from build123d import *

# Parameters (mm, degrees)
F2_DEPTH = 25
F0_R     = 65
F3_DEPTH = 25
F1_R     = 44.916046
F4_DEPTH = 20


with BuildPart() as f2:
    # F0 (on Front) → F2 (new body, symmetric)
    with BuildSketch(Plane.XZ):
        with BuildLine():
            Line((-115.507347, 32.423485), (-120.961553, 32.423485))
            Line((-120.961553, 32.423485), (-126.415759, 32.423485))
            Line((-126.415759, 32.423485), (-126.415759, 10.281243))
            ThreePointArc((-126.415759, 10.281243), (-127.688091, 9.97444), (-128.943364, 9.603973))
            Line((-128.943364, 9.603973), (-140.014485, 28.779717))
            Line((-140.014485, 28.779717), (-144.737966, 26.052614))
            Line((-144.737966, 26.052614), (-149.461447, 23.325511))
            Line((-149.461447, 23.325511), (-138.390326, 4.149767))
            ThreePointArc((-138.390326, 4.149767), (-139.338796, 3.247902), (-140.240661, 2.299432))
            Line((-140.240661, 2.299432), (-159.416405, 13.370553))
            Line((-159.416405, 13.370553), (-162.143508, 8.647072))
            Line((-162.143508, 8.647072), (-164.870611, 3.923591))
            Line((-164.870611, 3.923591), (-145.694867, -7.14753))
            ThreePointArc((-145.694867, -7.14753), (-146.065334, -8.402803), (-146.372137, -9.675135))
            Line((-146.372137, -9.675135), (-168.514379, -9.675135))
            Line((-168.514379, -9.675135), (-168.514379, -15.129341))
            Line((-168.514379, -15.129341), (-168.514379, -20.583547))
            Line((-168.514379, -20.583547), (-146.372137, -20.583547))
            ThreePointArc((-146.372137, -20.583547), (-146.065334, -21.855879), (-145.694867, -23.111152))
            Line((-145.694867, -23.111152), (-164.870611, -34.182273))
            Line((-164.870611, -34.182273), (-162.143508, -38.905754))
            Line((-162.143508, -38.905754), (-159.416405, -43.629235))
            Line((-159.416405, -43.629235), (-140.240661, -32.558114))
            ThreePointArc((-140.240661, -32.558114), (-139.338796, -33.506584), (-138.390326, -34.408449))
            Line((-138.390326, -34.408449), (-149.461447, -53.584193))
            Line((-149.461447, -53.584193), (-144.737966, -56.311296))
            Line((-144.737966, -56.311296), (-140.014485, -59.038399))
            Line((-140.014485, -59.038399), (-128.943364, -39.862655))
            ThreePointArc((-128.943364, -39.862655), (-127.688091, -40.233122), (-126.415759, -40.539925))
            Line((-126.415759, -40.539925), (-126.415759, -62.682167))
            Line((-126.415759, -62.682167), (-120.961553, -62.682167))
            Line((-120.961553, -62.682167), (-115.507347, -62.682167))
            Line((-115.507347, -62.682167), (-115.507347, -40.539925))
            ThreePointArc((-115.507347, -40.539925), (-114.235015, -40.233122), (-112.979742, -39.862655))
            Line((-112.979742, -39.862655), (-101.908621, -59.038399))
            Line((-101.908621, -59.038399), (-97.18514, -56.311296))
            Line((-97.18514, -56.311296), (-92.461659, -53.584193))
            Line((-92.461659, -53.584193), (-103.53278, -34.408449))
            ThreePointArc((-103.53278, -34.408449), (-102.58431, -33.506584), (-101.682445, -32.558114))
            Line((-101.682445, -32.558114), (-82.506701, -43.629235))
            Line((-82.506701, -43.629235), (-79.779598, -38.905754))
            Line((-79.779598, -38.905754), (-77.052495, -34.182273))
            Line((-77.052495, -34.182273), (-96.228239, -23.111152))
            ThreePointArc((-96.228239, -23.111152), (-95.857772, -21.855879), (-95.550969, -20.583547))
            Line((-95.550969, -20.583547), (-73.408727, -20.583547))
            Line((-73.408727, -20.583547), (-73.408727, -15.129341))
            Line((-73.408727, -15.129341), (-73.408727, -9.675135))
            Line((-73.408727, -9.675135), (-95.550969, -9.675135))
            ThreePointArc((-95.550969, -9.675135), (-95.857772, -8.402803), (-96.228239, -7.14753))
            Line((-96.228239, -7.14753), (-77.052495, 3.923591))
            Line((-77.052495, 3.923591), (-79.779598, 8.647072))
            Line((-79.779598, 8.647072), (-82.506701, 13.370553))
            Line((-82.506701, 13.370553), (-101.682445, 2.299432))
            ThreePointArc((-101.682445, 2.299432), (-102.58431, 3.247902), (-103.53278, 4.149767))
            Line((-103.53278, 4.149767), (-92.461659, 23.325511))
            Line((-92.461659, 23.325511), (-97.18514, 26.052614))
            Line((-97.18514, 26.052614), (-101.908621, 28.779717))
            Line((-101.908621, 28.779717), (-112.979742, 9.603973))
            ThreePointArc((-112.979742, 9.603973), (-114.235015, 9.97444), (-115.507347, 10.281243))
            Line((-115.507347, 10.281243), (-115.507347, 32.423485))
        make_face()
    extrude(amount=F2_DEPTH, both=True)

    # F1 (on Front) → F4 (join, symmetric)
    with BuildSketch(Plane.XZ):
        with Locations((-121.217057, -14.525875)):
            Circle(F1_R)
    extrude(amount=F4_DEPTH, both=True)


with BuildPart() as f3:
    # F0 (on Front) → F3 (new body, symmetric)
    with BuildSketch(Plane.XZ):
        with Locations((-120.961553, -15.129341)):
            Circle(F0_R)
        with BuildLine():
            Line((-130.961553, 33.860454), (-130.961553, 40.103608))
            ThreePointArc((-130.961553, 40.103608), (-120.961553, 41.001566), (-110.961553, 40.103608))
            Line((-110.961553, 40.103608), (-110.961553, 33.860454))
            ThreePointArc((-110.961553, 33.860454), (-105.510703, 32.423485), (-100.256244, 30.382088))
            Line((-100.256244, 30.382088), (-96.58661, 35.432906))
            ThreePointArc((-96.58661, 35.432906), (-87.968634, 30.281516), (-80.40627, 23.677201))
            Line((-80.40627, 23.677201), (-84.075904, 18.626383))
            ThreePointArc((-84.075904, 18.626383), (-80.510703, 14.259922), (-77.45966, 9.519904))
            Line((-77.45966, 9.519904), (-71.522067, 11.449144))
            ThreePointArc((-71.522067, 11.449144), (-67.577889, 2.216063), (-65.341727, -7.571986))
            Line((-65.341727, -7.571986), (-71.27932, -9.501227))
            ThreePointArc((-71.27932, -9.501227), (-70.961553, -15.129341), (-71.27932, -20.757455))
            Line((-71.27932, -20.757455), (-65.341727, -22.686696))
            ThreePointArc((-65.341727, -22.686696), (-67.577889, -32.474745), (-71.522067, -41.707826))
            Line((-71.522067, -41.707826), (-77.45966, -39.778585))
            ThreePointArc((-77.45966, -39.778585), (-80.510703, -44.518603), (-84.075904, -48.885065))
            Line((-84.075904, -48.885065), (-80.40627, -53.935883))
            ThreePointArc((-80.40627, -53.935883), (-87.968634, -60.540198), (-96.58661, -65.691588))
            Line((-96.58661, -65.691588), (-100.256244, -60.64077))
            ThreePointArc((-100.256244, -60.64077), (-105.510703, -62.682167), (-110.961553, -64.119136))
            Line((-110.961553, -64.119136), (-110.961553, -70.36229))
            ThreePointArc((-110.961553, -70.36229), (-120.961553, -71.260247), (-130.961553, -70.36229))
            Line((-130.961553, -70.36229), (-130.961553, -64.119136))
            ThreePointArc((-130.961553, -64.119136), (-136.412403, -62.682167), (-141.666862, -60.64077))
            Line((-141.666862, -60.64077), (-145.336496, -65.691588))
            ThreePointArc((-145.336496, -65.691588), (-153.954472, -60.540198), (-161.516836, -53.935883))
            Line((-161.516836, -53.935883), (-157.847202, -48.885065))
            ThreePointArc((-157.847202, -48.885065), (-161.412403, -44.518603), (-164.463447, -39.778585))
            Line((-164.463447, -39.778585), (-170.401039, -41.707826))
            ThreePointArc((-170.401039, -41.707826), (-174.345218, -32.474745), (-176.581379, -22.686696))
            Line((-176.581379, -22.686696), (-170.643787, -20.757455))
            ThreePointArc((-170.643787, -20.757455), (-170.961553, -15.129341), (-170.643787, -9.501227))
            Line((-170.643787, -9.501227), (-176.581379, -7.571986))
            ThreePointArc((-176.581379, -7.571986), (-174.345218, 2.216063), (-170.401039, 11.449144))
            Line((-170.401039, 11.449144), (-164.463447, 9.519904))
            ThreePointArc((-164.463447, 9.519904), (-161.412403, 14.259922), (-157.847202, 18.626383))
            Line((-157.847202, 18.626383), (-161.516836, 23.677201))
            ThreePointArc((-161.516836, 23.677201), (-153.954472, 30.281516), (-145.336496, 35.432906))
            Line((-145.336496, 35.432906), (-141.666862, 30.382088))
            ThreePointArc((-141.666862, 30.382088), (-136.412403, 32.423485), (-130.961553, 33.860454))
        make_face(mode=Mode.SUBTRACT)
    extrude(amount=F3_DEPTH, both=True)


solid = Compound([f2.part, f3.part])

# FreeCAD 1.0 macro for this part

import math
import FreeCAD as App
import Part
import Sketcher
from FreeCAD import Vector
Q = App.Units.Quantity

doc = App.newDocument("Part")
body = doc.addObject("PartDesign::Body", "Body")

# Sketch on XZ plane
sketch1 = body.newObject("Sketcher::SketchObject", "Sketch")
sketch1.AttachmentSupport = (doc.getObject("XZ_Plane"), [""])
sketch1.MapMode = "FlatFace"
sketch1.addGeometry([
    Part.LineSegment(Vector(-115.5, 32.4, 0), Vector(-126.4, 32.4, 0)),  # 0
    Part.LineSegment(Vector(-126.4, 32.4, 0), Vector(-126.4, 10.3, 0)),  # 1
    Part.ArcOfCircle(Part.Circle(Vector(-121, -15.1, 0), Vector(0, 0, 1), 26), math.radians(102.11), math.radians(107.89)),  # 2
    Part.LineSegment(Vector(-128.9, 9.6, 0), Vector(-140, 28.8, 0)),  # 3
    Part.LineSegment(Vector(-140, 28.8, 0), Vector(-149.5, 23.3, 0)),  # 4
    Part.LineSegment(Vector(-149.5, 23.3, 0), Vector(-138.4, 4.1, 0)),  # 5
    Part.ArcOfCircle(Part.Circle(Vector(-121, -15.1, 0), Vector(0, 0, 1), 26), math.radians(132.11), math.radians(137.89)),  # 6
    Part.LineSegment(Vector(-140.2, 2.3, 0), Vector(-159.4, 13.4, 0)),  # 7
    Part.LineSegment(Vector(-159.4, 13.4, 0), Vector(-164.9, 3.9, 0)),  # 8
    Part.LineSegment(Vector(-164.9, 3.9, 0), Vector(-145.7, -7.1, 0)),  # 9
    Part.ArcOfCircle(Part.Circle(Vector(-121, -15.1, 0), Vector(0, 0, 1), 26), math.radians(162.11), math.radians(167.89)),  # 10
    Part.LineSegment(Vector(-146.4, -9.7, 0), Vector(-168.5, -9.7, 0)),  # 11
    Part.LineSegment(Vector(-168.5, -9.7, 0), Vector(-168.5, -20.6, 0)),  # 12
    Part.LineSegment(Vector(-168.5, -20.6, 0), Vector(-146.4, -20.6, 0)),  # 13
    Part.ArcOfCircle(Part.Circle(Vector(-121, -15.1, 0), Vector(0, 0, 1), 26), math.radians(-167.89), math.radians(-162.11)),  # 14
    Part.LineSegment(Vector(-145.7, -23.1, 0), Vector(-164.9, -34.2, 0)),  # 15
    Part.LineSegment(Vector(-164.9, -34.2, 0), Vector(-159.4, -43.6, 0)),  # 16
    Part.LineSegment(Vector(-159.4, -43.6, 0), Vector(-140.2, -32.6, 0)),  # 17
    Part.ArcOfCircle(Part.Circle(Vector(-121, -15.1, 0), Vector(0, 0, 1), 26), math.radians(-137.89), math.radians(-132.11)),  # 18
    Part.LineSegment(Vector(-138.4, -34.4, 0), Vector(-149.5, -53.6, 0)),  # 19
    Part.LineSegment(Vector(-149.5, -53.6, 0), Vector(-140, -59, 0)),  # 20
    Part.LineSegment(Vector(-140, -59, 0), Vector(-128.9, -39.9, 0)),  # 21
    Part.ArcOfCircle(Part.Circle(Vector(-121, -15.1, 0), Vector(0, 0, 1), 26), math.radians(-107.89), math.radians(-102.11)),  # 22
    Part.LineSegment(Vector(-126.4, -40.5, 0), Vector(-126.4, -62.7, 0)),  # 23
    Part.LineSegment(Vector(-126.4, -62.7, 0), Vector(-115.5, -62.7, 0)),  # 24
    Part.LineSegment(Vector(-115.5, -62.7, 0), Vector(-115.5, -40.5, 0)),  # 25
    Part.ArcOfCircle(Part.Circle(Vector(-121, -15.1, 0), Vector(0, 0, 1), 26), math.radians(-77.89), math.radians(-72.11)),  # 26
    Part.LineSegment(Vector(-113, -39.9, 0), Vector(-101.9, -59, 0)),  # 27
    Part.LineSegment(Vector(-101.9, -59, 0), Vector(-92.5, -53.6, 0)),  # 28
    Part.LineSegment(Vector(-92.5, -53.6, 0), Vector(-103.5, -34.4, 0)),  # 29
    Part.ArcOfCircle(Part.Circle(Vector(-121, -15.1, 0), Vector(0, 0, 1), 26), math.radians(-47.89), math.radians(-42.11)),  # 30
    Part.LineSegment(Vector(-101.7, -32.6, 0), Vector(-82.5, -43.6, 0)),  # 31
    Part.LineSegment(Vector(-82.5, -43.6, 0), Vector(-77.1, -34.2, 0)),  # 32
    Part.LineSegment(Vector(-77.1, -34.2, 0), Vector(-96.2, -23.1, 0)),  # 33
    Part.ArcOfCircle(Part.Circle(Vector(-121, -15.1, 0), Vector(0, 0, 1), 26), math.radians(-17.89), math.radians(-12.11)),  # 34
    Part.LineSegment(Vector(-95.6, -20.6, 0), Vector(-73.4, -20.6, 0)),  # 35
    Part.LineSegment(Vector(-73.4, -20.6, 0), Vector(-73.4, -9.7, 0)),  # 36
    Part.LineSegment(Vector(-73.4, -9.7, 0), Vector(-95.6, -9.7, 0)),  # 37
    Part.ArcOfCircle(Part.Circle(Vector(-121, -15.1, 0), Vector(0, 0, 1), 26), math.radians(12.11), math.radians(17.89)),  # 38
    Part.LineSegment(Vector(-96.2, -7.1, 0), Vector(-77.1, 3.9, 0)),  # 39
    Part.LineSegment(Vector(-77.1, 3.9, 0), Vector(-82.5, 13.4, 0)),  # 40
    Part.LineSegment(Vector(-82.5, 13.4, 0), Vector(-101.7, 2.3, 0)),  # 41
    Part.ArcOfCircle(Part.Circle(Vector(-121, -15.1, 0), Vector(0, 0, 1), 26), math.radians(42.11), math.radians(47.89)),  # 42
    Part.LineSegment(Vector(-103.5, 4.1, 0), Vector(-92.5, 23.3, 0)),  # 43
    Part.LineSegment(Vector(-92.5, 23.3, 0), Vector(-101.9, 28.8, 0)),  # 44
    Part.LineSegment(Vector(-101.9, 28.8, 0), Vector(-113, 9.6, 0)),  # 45
    Part.ArcOfCircle(Part.Circle(Vector(-121, -15.1, 0), Vector(0, 0, 1), 26), math.radians(72.11), math.radians(77.89)),  # 46
    Part.LineSegment(Vector(-115.5, 10.3, 0), Vector(-115.5, 32.4, 0)),  # 47
], False)
sketch1.addConstraint([
    Sketcher.Constraint("Coincident", 0, 2, 1, 1),
    Sketcher.Constraint("Coincident", 1, 2, 2, 1),
    Sketcher.Constraint("Coincident", 2, 2, 3, 1),
    Sketcher.Constraint("Coincident", 3, 2, 4, 1),
    Sketcher.Constraint("Coincident", 4, 2, 5, 1),
    Sketcher.Constraint("Coincident", 5, 2, 6, 1),
    Sketcher.Constraint("Coincident", 6, 2, 7, 1),
    Sketcher.Constraint("Coincident", 7, 2, 8, 1),
    Sketcher.Constraint("Coincident", 8, 2, 9, 1),
    Sketcher.Constraint("Coincident", 9, 2, 10, 1),
    Sketcher.Constraint("Coincident", 10, 2, 11, 1),
    Sketcher.Constraint("Coincident", 11, 2, 12, 1),
    Sketcher.Constraint("Coincident", 12, 2, 13, 1),
    Sketcher.Constraint("Coincident", 13, 2, 14, 1),
    Sketcher.Constraint("Coincident", 14, 2, 15, 1),
    Sketcher.Constraint("Coincident", 15, 2, 16, 1),
    Sketcher.Constraint("Coincident", 16, 2, 17, 1),
    Sketcher.Constraint("Coincident", 17, 2, 18, 1),
    Sketcher.Constraint("Coincident", 18, 2, 19, 1),
    Sketcher.Constraint("Coincident", 19, 2, 20, 1),
    Sketcher.Constraint("Coincident", 20, 2, 21, 1),
    Sketcher.Constraint("Coincident", 21, 2, 22, 1),
    Sketcher.Constraint("Coincident", 22, 2, 23, 1),
    Sketcher.Constraint("Coincident", 23, 2, 24, 1),
    Sketcher.Constraint("Coincident", 24, 2, 25, 1),
    Sketcher.Constraint("Coincident", 25, 2, 26, 1),
    Sketcher.Constraint("Coincident", 26, 2, 27, 1),
    Sketcher.Constraint("Coincident", 27, 2, 28, 1),
    Sketcher.Constraint("Coincident", 28, 2, 29, 1),
    Sketcher.Constraint("Coincident", 29, 2, 30, 1),
    Sketcher.Constraint("Coincident", 30, 2, 31, 1),
    Sketcher.Constraint("Coincident", 31, 2, 32, 1),
    Sketcher.Constraint("Coincident", 32, 2, 33, 1),
    Sketcher.Constraint("Coincident", 33, 2, 34, 1),
    Sketcher.Constraint("Coincident", 34, 2, 35, 1),
    Sketcher.Constraint("Coincident", 35, 2, 36, 1),
    Sketcher.Constraint("Coincident", 36, 2, 37, 1),
    Sketcher.Constraint("Coincident", 37, 2, 38, 1),
    Sketcher.Constraint("Coincident", 38, 2, 39, 1),
    Sketcher.Constraint("Coincident", 39, 2, 40, 1),
    Sketcher.Constraint("Coincident", 40, 2, 41, 1),
    Sketcher.Constraint("Coincident", 41, 2, 42, 1),
    Sketcher.Constraint("Coincident", 42, 2, 43, 1),
    Sketcher.Constraint("Coincident", 43, 2, 44, 1),
    Sketcher.Constraint("Coincident", 44, 2, 45, 1),
    Sketcher.Constraint("Coincident", 45, 2, 46, 1),
    Sketcher.Constraint("Coincident", 46, 2, 47, 1),
    Sketcher.Constraint("Coincident", 47, 2, 0, 1),
    Sketcher.Constraint("Horizontal", 0),
    Sketcher.Constraint("Vertical", 1),
    Sketcher.Constraint("Horizontal", 11),
    Sketcher.Constraint("Vertical", 12),
    Sketcher.Constraint("Horizontal", 13),
    Sketcher.Constraint("Vertical", 23),
    Sketcher.Constraint("Horizontal", 24),
    Sketcher.Constraint("Vertical", 25),
    Sketcher.Constraint("Horizontal", 35),
    Sketcher.Constraint("Vertical", 36),
    Sketcher.Constraint("Horizontal", 37),
    Sketcher.Constraint("Vertical", 47),
    Sketcher.Constraint("Equal", 2, 10),
    Sketcher.Constraint("Equal", 10, 14),
    Sketcher.Constraint("Equal", 6, 18),
    Sketcher.Constraint("Equal", 14, 22),
    Sketcher.Constraint("Equal", 22, 26),
    Sketcher.Constraint("Equal", 18, 30),
    Sketcher.Constraint("Equal", 26, 34),
    Sketcher.Constraint("Equal", 34, 38),
    Sketcher.Constraint("Equal", 30, 42),
    Sketcher.Constraint("Equal", 38, 46),
    Sketcher.Constraint("Perpendicular", 3, 4),
    Sketcher.Constraint("Perpendicular", 4, 5),
    Sketcher.Constraint("Perpendicular", 7, 8),
    Sketcher.Constraint("Perpendicular", 8, 9),
    Sketcher.Constraint("Perpendicular", 5, 15),
    Sketcher.Constraint("Perpendicular", 15, 16),
    Sketcher.Constraint("Perpendicular", 16, 17),
    Sketcher.Constraint("Perpendicular", 9, 19),
    Sketcher.Constraint("Perpendicular", 19, 20),
    Sketcher.Constraint("Perpendicular", 20, 21),
    Sketcher.Constraint("Perpendicular", 17, 27),
    Sketcher.Constraint("Perpendicular", 27, 28),
    Sketcher.Constraint("Perpendicular", 28, 29),
    Sketcher.Constraint("Perpendicular", 21, 31),
    Sketcher.Constraint("Perpendicular", 31, 32),
    Sketcher.Constraint("Perpendicular", 32, 33),
    Sketcher.Constraint("Perpendicular", 29, 39),
    Sketcher.Constraint("Perpendicular", 39, 40),
    Sketcher.Constraint("Perpendicular", 40, 41),
    Sketcher.Constraint("Perpendicular", 33, 43),
    Sketcher.Constraint("Perpendicular", 43, 44),
    Sketcher.Constraint("Perpendicular", 44, 45),
    Sketcher.Constraint("Horizontal", 22, 3, 26, 3),
    Sketcher.Constraint("Horizontal", 18, 3, 30, 3),
    Sketcher.Constraint("Horizontal", 14, 3, 34, 3),
    Sketcher.Constraint("Horizontal", 10, 3, 38, 3),
    Sketcher.Constraint("Horizontal", 6, 3, 42, 3),
    Sketcher.Constraint("Horizontal", 2, 3, 46, 3),
    Sketcher.Constraint("Horizontal", 22, 2, 25, 2),
    Sketcher.Constraint("Horizontal", 21, 2, 26, 2),
    Sketcher.Constraint("Horizontal", 20, 2, 27, 2),
    Sketcher.Constraint("Horizontal", 19, 2, 28, 2),
    Sketcher.Constraint("Horizontal", 18, 2, 29, 2),
    Sketcher.Constraint("Horizontal", 17, 2, 30, 2),
    Sketcher.Constraint("Horizontal", 16, 2, 31, 2),
    Sketcher.Constraint("Horizontal", 15, 2, 32, 2),
    Sketcher.Constraint("Horizontal", 14, 2, 33, 2),
    Sketcher.Constraint("Horizontal", 13, 2, 34, 2),
    Sketcher.Constraint("Horizontal", 11, 2, 36, 2),
    Sketcher.Constraint("Horizontal", 9, 2, 38, 2),
    Sketcher.Constraint("Horizontal", 8, 2, 39, 2),
    Sketcher.Constraint("Horizontal", 7, 2, 40, 2),
    Sketcher.Constraint("Horizontal", 6, 2, 41, 2),
    Sketcher.Constraint("Horizontal", 5, 2, 42, 2),
    Sketcher.Constraint("Horizontal", 4, 2, 43, 2),
    Sketcher.Constraint("Horizontal", 3, 2, 44, 2),
    Sketcher.Constraint("Horizontal", 2, 2, 45, 2),
    Sketcher.Constraint("Horizontal", 1, 2, 46, 2),
    Sketcher.Constraint("Vertical", 10, 3, 14, 3),
    Sketcher.Constraint("Vertical", 6, 3, 18, 3),
    Sketcher.Constraint("Vertical", 2, 3, 22, 3),
    Sketcher.Constraint("Vertical", 34, 3, 38, 3),
    Sketcher.Constraint("Vertical", 30, 3, 42, 3),
    Sketcher.Constraint("Vertical", 10, 2, 13, 2),
    Sketcher.Constraint("Vertical", 9, 2, 14, 2),
    Sketcher.Constraint("Vertical", 8, 2, 15, 2),
    Sketcher.Constraint("Vertical", 7, 2, 16, 2),
    Sketcher.Constraint("Vertical", 6, 2, 17, 2),
    Sketcher.Constraint("Vertical", 5, 2, 18, 2),
    Sketcher.Constraint("Vertical", 4, 2, 19, 2),
    Sketcher.Constraint("Vertical", 3, 2, 20, 2),
    Sketcher.Constraint("Vertical", 2, 2, 21, 2),
    Sketcher.Constraint("Vertical", 1, 2, 22, 2),
    Sketcher.Constraint("Equal", 13, 35),
    Sketcher.Constraint("Equal", 37, 1),
    Sketcher.Constraint("Equal", 24, 12),
    Sketcher.Constraint("Equal", 1, 23),
    Sketcher.Constraint("Equal", 3, 5),
    Sketcher.Constraint("Equal", 5, 7),
    Sketcher.Constraint("Equal", 4, 8),
    Sketcher.Constraint("Equal", 7, 9),
    Sketcher.Constraint("Angle", 3, Q("120 deg")),
    Sketcher.Constraint("Radius", 2, 25.989367),
    Sketcher.Constraint("Radius", 6, 25.989544),
    Sketcher.Constraint("DistanceX", 0, 2, 0, 1, 10.908412),
    Sketcher.Constraint("DistanceX", 11, 2, 11, 1, 22.142242),
    Sketcher.Constraint("DistanceY", 18, 3, -1, 1, 15.129202),
    Sketcher.Constraint("DistanceY", 20, 2, -1, 1, 59.038399),
    Sketcher.Constraint("DistanceX", 31, 2, -1, 1, 82.506701),
    Sketcher.Constraint("DistanceX", 0, 2, 26, 3, 5.454198),
    Sketcher.Constraint("DistanceY", 12, 2, 7, 2, 33.9541),
    Sketcher.Constraint("DistanceX", 19, 2, 24, 2, 33.9541),
    Sketcher.Constraint("Distance", 3, 22.142242),
    Sketcher.Constraint("DistanceY", 2, 3, -1, 1, 15.12936),
    Sketcher.Constraint("DistanceY", 6, 3, -1, 1, 15.12948),
    Sketcher.Constraint("DistanceY", 10, 3, -1, 1, 15.129349),
])
pad1 = body.newObject("PartDesign::Pad", "Pad")
pad1.Profile = sketch1
pad1.Length = 50
pad1.Midplane = True

# Sketch on XZ plane
sketch2 = body.newObject("Sketcher::SketchObject", "Sketch001")
sketch2.AttachmentSupport = (doc.getObject("XZ_Plane"), [""])
sketch2.MapMode = "FlatFace"
sketch2.addGeometry(Part.Circle(Vector(-121, -15, 0), Vector(0, 0, 1), 45), False)
sketch2.addConstraint([
    Sketcher.Constraint("Diameter", 0, 89.832092),
    Sketcher.Constraint("DistanceX", 0, 3, -1, 1, 121.217057),
    Sketcher.Constraint("DistanceY", 0, 3, -1, 1, 14.525875),
])
pad2 = body.newObject("PartDesign::Pad", "Pad001")
pad2.Profile = sketch2
pad2.Length = 40
pad2.Midplane = True
body2 = doc.addObject("PartDesign::Body", "Body001")

# Sketch on XZ plane
sketch3 = body2.newObject("Sketcher::SketchObject", "Sketch002")
sketch3.AttachmentSupport = (doc.getObject("XZ_Plane001"), [""])
sketch3.MapMode = "FlatFace"
sketch3.addGeometry([
    Part.Circle(Vector(-121, -15, 0), Vector(0, 0, 1), 65),  # 0
    Part.ArcOfCircle(Part.Circle(Vector(-121, -15, 0), Vector(0, 0, 1), 50), math.radians(101.54), math.radians(114.46)),  # 1
    Part.LineSegment(Vector(-131, 34, 0), Vector(-131, 40, 0)),  # 2
    Part.ArcOfCircle(Part.Circle(Vector(-121, -15, 0), Vector(0, 0, 1), 56), math.radians(80), math.radians(100)),  # 3
    Part.LineSegment(Vector(-111, 40, 0), Vector(-111, 34, 0)),  # 4
    Part.ArcOfCircle(Part.Circle(Vector(-121, -15, 0), Vector(0, 0, 1), 50), math.radians(65.54), math.radians(78.46)),  # 5
    Part.LineSegment(Vector(-100, 30, 0), Vector(-97, 35, 0)),  # 6
    Part.ArcOfCircle(Part.Circle(Vector(-121, -15, 0), Vector(0, 0, 1), 56), math.radians(44), math.radians(64)),  # 7
    Part.LineSegment(Vector(-80, 24, 0), Vector(-84, 19, 0)),  # 8
    Part.ArcOfCircle(Part.Circle(Vector(-121, -15, 0), Vector(0, 0, 1), 50), math.radians(29.54), math.radians(42.46)),  # 9
    Part.LineSegment(Vector(-77, 10, 0), Vector(-72, 11, 0)),  # 10
    Part.ArcOfCircle(Part.Circle(Vector(-121, -15, 0), Vector(0, 0, 1), 56), math.radians(8), math.radians(28)),  # 11
    Part.LineSegment(Vector(-65, -8, 0), Vector(-71, -10, 0)),  # 12
    Part.ArcOfCircle(Part.Circle(Vector(-121, -15, 0), Vector(0, 0, 1), 50), math.radians(-6.46), math.radians(6.46)),  # 13
    Part.LineSegment(Vector(-71, -21, 0), Vector(-65, -23, 0)),  # 14
    Part.ArcOfCircle(Part.Circle(Vector(-121, -15, 0), Vector(0, 0, 1), 56), math.radians(-28), math.radians(-8)),  # 15
    Part.LineSegment(Vector(-72, -42, 0), Vector(-77, -40, 0)),  # 16
    Part.ArcOfCircle(Part.Circle(Vector(-121, -15, 0), Vector(0, 0, 1), 50), math.radians(-42.46), math.radians(-29.54)),  # 17
    Part.LineSegment(Vector(-84, -49, 0), Vector(-80, -54, 0)),  # 18
    Part.ArcOfCircle(Part.Circle(Vector(-121, -15, 0), Vector(0, 0, 1), 56), math.radians(-64), math.radians(-44)),  # 19
    Part.LineSegment(Vector(-97, -66, 0), Vector(-100, -61, 0)),  # 20
    Part.ArcOfCircle(Part.Circle(Vector(-121, -15, 0), Vector(0, 0, 1), 50), math.radians(-78.46), math.radians(-65.54)),  # 21
    Part.LineSegment(Vector(-111, -64, 0), Vector(-111, -70, 0)),  # 22
    Part.ArcOfCircle(Part.Circle(Vector(-121, -15, 0), Vector(0, 0, 1), 56), math.radians(-100), math.radians(-80)),  # 23
    Part.LineSegment(Vector(-131, -70, 0), Vector(-131, -64, 0)),  # 24
    Part.ArcOfCircle(Part.Circle(Vector(-121, -15, 0), Vector(0, 0, 1), 50), math.radians(-114.46), math.radians(-101.54)),  # 25
    Part.LineSegment(Vector(-142, -61, 0), Vector(-145, -66, 0)),  # 26
    Part.ArcOfCircle(Part.Circle(Vector(-121, -15, 0), Vector(0, 0, 1), 56), math.radians(-136), math.radians(-116)),  # 27
    Part.LineSegment(Vector(-162, -54, 0), Vector(-158, -49, 0)),  # 28
    Part.ArcOfCircle(Part.Circle(Vector(-121, -15, 0), Vector(0, 0, 1), 50), math.radians(-150.46), math.radians(-137.54)),  # 29
    Part.LineSegment(Vector(-164, -40, 0), Vector(-170, -42, 0)),  # 30
    Part.ArcOfCircle(Part.Circle(Vector(-121, -15, 0), Vector(0, 0, 1), 56), math.radians(-172), math.radians(-152)),  # 31
    Part.LineSegment(Vector(-177, -23, 0), Vector(-171, -21, 0)),  # 32
    Part.ArcOfCircle(Part.Circle(Vector(-121, -15, 0), Vector(0, 0, 1), 50), math.radians(173.54), math.radians(186.46)),  # 33
    Part.LineSegment(Vector(-171, -10, 0), Vector(-177, -8, 0)),  # 34
    Part.ArcOfCircle(Part.Circle(Vector(-121, -15, 0), Vector(0, 0, 1), 56), math.radians(152), math.radians(172)),  # 35
    Part.LineSegment(Vector(-170, 11, 0), Vector(-164, 10, 0)),  # 36
    Part.ArcOfCircle(Part.Circle(Vector(-121, -15, 0), Vector(0, 0, 1), 50), math.radians(137.54), math.radians(150.46)),  # 37
    Part.LineSegment(Vector(-158, 19, 0), Vector(-162, 24, 0)),  # 38
    Part.ArcOfCircle(Part.Circle(Vector(-121, -15, 0), Vector(0, 0, 1), 56), math.radians(116), math.radians(136)),  # 39
    Part.LineSegment(Vector(-145, 35, 0), Vector(-142, 30, 0)),  # 40
], False)
sketch3.addConstraint([
    Sketcher.Constraint("Coincident", 1, 1, 2, 1),
    Sketcher.Constraint("Coincident", 2, 2, 3, 2),
    Sketcher.Constraint("Coincident", 3, 1, 4, 1),
    Sketcher.Constraint("Coincident", 4, 2, 5, 2),
    Sketcher.Constraint("Coincident", 5, 1, 6, 1),
    Sketcher.Constraint("Coincident", 6, 2, 7, 2),
    Sketcher.Constraint("Coincident", 7, 1, 8, 1),
    Sketcher.Constraint("Coincident", 8, 2, 9, 2),
    Sketcher.Constraint("Coincident", 9, 1, 10, 1),
    Sketcher.Constraint("Coincident", 10, 2, 11, 2),
    Sketcher.Constraint("Coincident", 11, 1, 12, 1),
    Sketcher.Constraint("Coincident", 12, 2, 13, 2),
    Sketcher.Constraint("Coincident", 13, 1, 14, 1),
    Sketcher.Constraint("Coincident", 14, 2, 15, 2),
    Sketcher.Constraint("Coincident", 15, 1, 16, 1),
    Sketcher.Constraint("Coincident", 16, 2, 17, 2),
    Sketcher.Constraint("Coincident", 17, 1, 18, 1),
    Sketcher.Constraint("Coincident", 18, 2, 19, 2),
    Sketcher.Constraint("Coincident", 19, 1, 20, 1),
    Sketcher.Constraint("Coincident", 20, 2, 21, 2),
    Sketcher.Constraint("Coincident", 21, 1, 22, 1),
    Sketcher.Constraint("Coincident", 22, 2, 23, 2),
    Sketcher.Constraint("Coincident", 23, 1, 24, 1),
    Sketcher.Constraint("Coincident", 24, 2, 25, 2),
    Sketcher.Constraint("Coincident", 25, 1, 26, 1),
    Sketcher.Constraint("Coincident", 26, 2, 27, 2),
    Sketcher.Constraint("Coincident", 27, 1, 28, 1),
    Sketcher.Constraint("Coincident", 28, 2, 29, 2),
    Sketcher.Constraint("Coincident", 29, 1, 30, 1),
    Sketcher.Constraint("Coincident", 30, 2, 31, 2),
    Sketcher.Constraint("Coincident", 31, 1, 32, 1),
    Sketcher.Constraint("Coincident", 32, 2, 33, 2),
    Sketcher.Constraint("Coincident", 33, 1, 34, 1),
    Sketcher.Constraint("Coincident", 34, 2, 35, 2),
    Sketcher.Constraint("Coincident", 35, 1, 36, 1),
    Sketcher.Constraint("Coincident", 36, 2, 37, 2),
    Sketcher.Constraint("Coincident", 37, 1, 38, 1),
    Sketcher.Constraint("Coincident", 38, 2, 39, 2),
    Sketcher.Constraint("Coincident", 39, 1, 40, 1),
    Sketcher.Constraint("Coincident", 40, 2, 1, 2),
    Sketcher.Constraint("Vertical", 2),
    Sketcher.Constraint("Vertical", 4),
    Sketcher.Constraint("Vertical", 22),
    Sketcher.Constraint("Vertical", 24),
    Sketcher.Constraint("Coincident", 37, 3, 15, 3),
    Sketcher.Constraint("Equal", 1, 5),
    Sketcher.Constraint("Equal", 9, 13),
    Sketcher.Constraint("Equal", 11, 15),
    Sketcher.Constraint("Equal", 7, 19),
    Sketcher.Constraint("Equal", 5, 21),
    Sketcher.Constraint("Equal", 21, 25),
    Sketcher.Constraint("Equal", 19, 27),
    Sketcher.Constraint("Equal", 31, 35),
    Sketcher.Constraint("Equal", 27, 39),
    Sketcher.Constraint("Parallel", 6, 8),
    Sketcher.Constraint("Parallel", 10, 12),
    Sketcher.Constraint("Parallel", 14, 16),
    Sketcher.Constraint("Parallel", 18, 20),
    Sketcher.Constraint("Parallel", 8, 26),
    Sketcher.Constraint("Parallel", 26, 28),
    Sketcher.Constraint("Parallel", 12, 30),
    Sketcher.Constraint("Parallel", 30, 32),
    Sketcher.Constraint("Parallel", 16, 34),
    Sketcher.Constraint("Parallel", 34, 36),
    Sketcher.Constraint("Parallel", 20, 38),
    Sketcher.Constraint("Parallel", 38, 40),
    Sketcher.Constraint("Horizontal", 1, 3, 3, 3),
    Sketcher.Constraint("Horizontal", 3, 3, 5, 3),
    Sketcher.Constraint("Horizontal", 0, 3, 13, 3),
    Sketcher.Constraint("Horizontal", 21, 3, 25, 3),
    Sketcher.Constraint("Horizontal", 19, 3, 27, 3),
    Sketcher.Constraint("Horizontal", 13, 3, 33, 3),
    Sketcher.Constraint("Horizontal", 7, 3, 39, 3),
    Sketcher.Constraint("Horizontal", 2, 2, 3, 1),
    Sketcher.Constraint("Horizontal", 1, 1, 4, 2),
    Sketcher.Constraint("Horizontal", 22, 2, 23, 1),
    Sketcher.Constraint("Horizontal", 21, 1, 24, 2),
    Sketcher.Constraint("Horizontal", 20, 2, 25, 1),
    Sketcher.Constraint("Horizontal", 19, 1, 26, 2),
    Sketcher.Constraint("Horizontal", 18, 2, 27, 1),
    Sketcher.Constraint("Horizontal", 17, 1, 28, 2),
    Sketcher.Constraint("Horizontal", 16, 2, 29, 1),
    Sketcher.Constraint("Horizontal", 15, 1, 30, 2),
    Sketcher.Constraint("Horizontal", 14, 2, 31, 1),
    Sketcher.Constraint("Horizontal", 13, 1, 32, 2),
    Sketcher.Constraint("Horizontal", 12, 2, 33, 1),
    Sketcher.Constraint("Horizontal", 11, 1, 34, 2),
    Sketcher.Constraint("Horizontal", 10, 2, 35, 1),
    Sketcher.Constraint("Horizontal", 9, 1, 36, 2),
    Sketcher.Constraint("Horizontal", 8, 2, 37, 1),
    Sketcher.Constraint("Horizontal", 7, 1, 38, 2),
    Sketcher.Constraint("Horizontal", 6, 2, 39, 1),
    Sketcher.Constraint("Horizontal", 5, 1, 40, 2),
    Sketcher.Constraint("Vertical", 0, 3, 3, 3),
    Sketcher.Constraint("Vertical", 1, 3, 7, 3),
    Sketcher.Constraint("Vertical", 11, 3, 15, 3),
    Sketcher.Constraint("Vertical", 7, 3, 19, 3),
    Sketcher.Constraint("Vertical", 5, 3, 21, 3),
    Sketcher.Constraint("Vertical", 3, 3, 23, 3),
    Sketcher.Constraint("Vertical", 21, 3, 27, 3),
    Sketcher.Constraint("Vertical", 17, 3, 29, 3),
    Sketcher.Constraint("Vertical", 31, 3, 35, 3),
    Sketcher.Constraint("Vertical", 12, 2, 13, 1),
    Sketcher.Constraint("Vertical", 11, 1, 14, 2),
    Sketcher.Constraint("Vertical", 10, 2, 15, 1),
    Sketcher.Constraint("Vertical", 9, 1, 16, 2),
    Sketcher.Constraint("Vertical", 8, 2, 17, 1),
    Sketcher.Constraint("Vertical", 7, 1, 18, 2),
    Sketcher.Constraint("Vertical", 6, 2, 19, 1),
    Sketcher.Constraint("Vertical", 5, 1, 20, 2),
    Sketcher.Constraint("Vertical", 4, 2, 21, 1),
    Sketcher.Constraint("Vertical", 31, 1, 34, 2),
    Sketcher.Constraint("Equal", 4, 22),
    Sketcher.Constraint("Equal", 6, 8),
    Sketcher.Constraint("Equal", 8, 10),
    Sketcher.Constraint("Equal", 10, 12),
    Sketcher.Constraint("Diameter", 0, 130.0),
    Sketcher.Constraint("Angle", 6, Q("54.000001 deg")),
    Sketcher.Constraint("Angle", 10, Q("17.999992 deg")),
    Sketcher.Constraint("Radius", 3, 56.130871),
    Sketcher.Constraint("Radius", 11, 56.130922),
    Sketcher.Constraint("Radius", 13, 49.99991),
    Sketcher.Constraint("Radius", 37, 49.999981),
    Sketcher.Constraint("Radius", 1, 49.999962),
    Sketcher.Constraint("Radius", 7, 56.130927),
    Sketcher.Constraint("Radius", 17, 49.999965),
    Sketcher.Constraint("Radius", 23, 56.130932),
    Sketcher.Constraint("Radius", 29, 50.000034),
    Sketcher.Constraint("Radius", 31, 56.130863),
    Sketcher.Constraint("Radius", 33, 50.000067),
    Sketcher.Constraint("DistanceY", -1, 1, 7, 1, 23.677201),
    Sketcher.Constraint("DistanceX", 37, 1, -1, 1, 157.847202),
    Sketcher.Constraint("DistanceY", 2, 1, 2, 2, 6.243154),
    Sketcher.Constraint("DistanceY", 0, 3, -1, 1, 15.129341),
    Sketcher.Constraint("DistanceX", 27, 3, -1, 1, 120.961541),
    Sketcher.Constraint("DistanceY", 29, 3, -1, 1, 15.129321),
    Sketcher.Constraint("DistanceX", 37, 3, -1, 1, 120.961571),
    Sketcher.Constraint("DistanceY", 37, 3, -1, 1, 15.129331),
    Sketcher.Constraint("DistanceX", 6, 2, -1, 1, 96.58661),
    Sketcher.Constraint("DistanceX", 9, 1, -1, 1, 77.45966),
    Sketcher.Constraint("DistanceX", 12, 2, -1, 1, 71.27932),
    Sketcher.Constraint("DistanceX", 31, 1, -1, 1, 176.581379),
])
pad3 = body2.newObject("PartDesign::Pad", "Pad002")
pad3.Profile = sketch3
pad3.Length = 50
pad3.Midplane = True

doc.recompute()
